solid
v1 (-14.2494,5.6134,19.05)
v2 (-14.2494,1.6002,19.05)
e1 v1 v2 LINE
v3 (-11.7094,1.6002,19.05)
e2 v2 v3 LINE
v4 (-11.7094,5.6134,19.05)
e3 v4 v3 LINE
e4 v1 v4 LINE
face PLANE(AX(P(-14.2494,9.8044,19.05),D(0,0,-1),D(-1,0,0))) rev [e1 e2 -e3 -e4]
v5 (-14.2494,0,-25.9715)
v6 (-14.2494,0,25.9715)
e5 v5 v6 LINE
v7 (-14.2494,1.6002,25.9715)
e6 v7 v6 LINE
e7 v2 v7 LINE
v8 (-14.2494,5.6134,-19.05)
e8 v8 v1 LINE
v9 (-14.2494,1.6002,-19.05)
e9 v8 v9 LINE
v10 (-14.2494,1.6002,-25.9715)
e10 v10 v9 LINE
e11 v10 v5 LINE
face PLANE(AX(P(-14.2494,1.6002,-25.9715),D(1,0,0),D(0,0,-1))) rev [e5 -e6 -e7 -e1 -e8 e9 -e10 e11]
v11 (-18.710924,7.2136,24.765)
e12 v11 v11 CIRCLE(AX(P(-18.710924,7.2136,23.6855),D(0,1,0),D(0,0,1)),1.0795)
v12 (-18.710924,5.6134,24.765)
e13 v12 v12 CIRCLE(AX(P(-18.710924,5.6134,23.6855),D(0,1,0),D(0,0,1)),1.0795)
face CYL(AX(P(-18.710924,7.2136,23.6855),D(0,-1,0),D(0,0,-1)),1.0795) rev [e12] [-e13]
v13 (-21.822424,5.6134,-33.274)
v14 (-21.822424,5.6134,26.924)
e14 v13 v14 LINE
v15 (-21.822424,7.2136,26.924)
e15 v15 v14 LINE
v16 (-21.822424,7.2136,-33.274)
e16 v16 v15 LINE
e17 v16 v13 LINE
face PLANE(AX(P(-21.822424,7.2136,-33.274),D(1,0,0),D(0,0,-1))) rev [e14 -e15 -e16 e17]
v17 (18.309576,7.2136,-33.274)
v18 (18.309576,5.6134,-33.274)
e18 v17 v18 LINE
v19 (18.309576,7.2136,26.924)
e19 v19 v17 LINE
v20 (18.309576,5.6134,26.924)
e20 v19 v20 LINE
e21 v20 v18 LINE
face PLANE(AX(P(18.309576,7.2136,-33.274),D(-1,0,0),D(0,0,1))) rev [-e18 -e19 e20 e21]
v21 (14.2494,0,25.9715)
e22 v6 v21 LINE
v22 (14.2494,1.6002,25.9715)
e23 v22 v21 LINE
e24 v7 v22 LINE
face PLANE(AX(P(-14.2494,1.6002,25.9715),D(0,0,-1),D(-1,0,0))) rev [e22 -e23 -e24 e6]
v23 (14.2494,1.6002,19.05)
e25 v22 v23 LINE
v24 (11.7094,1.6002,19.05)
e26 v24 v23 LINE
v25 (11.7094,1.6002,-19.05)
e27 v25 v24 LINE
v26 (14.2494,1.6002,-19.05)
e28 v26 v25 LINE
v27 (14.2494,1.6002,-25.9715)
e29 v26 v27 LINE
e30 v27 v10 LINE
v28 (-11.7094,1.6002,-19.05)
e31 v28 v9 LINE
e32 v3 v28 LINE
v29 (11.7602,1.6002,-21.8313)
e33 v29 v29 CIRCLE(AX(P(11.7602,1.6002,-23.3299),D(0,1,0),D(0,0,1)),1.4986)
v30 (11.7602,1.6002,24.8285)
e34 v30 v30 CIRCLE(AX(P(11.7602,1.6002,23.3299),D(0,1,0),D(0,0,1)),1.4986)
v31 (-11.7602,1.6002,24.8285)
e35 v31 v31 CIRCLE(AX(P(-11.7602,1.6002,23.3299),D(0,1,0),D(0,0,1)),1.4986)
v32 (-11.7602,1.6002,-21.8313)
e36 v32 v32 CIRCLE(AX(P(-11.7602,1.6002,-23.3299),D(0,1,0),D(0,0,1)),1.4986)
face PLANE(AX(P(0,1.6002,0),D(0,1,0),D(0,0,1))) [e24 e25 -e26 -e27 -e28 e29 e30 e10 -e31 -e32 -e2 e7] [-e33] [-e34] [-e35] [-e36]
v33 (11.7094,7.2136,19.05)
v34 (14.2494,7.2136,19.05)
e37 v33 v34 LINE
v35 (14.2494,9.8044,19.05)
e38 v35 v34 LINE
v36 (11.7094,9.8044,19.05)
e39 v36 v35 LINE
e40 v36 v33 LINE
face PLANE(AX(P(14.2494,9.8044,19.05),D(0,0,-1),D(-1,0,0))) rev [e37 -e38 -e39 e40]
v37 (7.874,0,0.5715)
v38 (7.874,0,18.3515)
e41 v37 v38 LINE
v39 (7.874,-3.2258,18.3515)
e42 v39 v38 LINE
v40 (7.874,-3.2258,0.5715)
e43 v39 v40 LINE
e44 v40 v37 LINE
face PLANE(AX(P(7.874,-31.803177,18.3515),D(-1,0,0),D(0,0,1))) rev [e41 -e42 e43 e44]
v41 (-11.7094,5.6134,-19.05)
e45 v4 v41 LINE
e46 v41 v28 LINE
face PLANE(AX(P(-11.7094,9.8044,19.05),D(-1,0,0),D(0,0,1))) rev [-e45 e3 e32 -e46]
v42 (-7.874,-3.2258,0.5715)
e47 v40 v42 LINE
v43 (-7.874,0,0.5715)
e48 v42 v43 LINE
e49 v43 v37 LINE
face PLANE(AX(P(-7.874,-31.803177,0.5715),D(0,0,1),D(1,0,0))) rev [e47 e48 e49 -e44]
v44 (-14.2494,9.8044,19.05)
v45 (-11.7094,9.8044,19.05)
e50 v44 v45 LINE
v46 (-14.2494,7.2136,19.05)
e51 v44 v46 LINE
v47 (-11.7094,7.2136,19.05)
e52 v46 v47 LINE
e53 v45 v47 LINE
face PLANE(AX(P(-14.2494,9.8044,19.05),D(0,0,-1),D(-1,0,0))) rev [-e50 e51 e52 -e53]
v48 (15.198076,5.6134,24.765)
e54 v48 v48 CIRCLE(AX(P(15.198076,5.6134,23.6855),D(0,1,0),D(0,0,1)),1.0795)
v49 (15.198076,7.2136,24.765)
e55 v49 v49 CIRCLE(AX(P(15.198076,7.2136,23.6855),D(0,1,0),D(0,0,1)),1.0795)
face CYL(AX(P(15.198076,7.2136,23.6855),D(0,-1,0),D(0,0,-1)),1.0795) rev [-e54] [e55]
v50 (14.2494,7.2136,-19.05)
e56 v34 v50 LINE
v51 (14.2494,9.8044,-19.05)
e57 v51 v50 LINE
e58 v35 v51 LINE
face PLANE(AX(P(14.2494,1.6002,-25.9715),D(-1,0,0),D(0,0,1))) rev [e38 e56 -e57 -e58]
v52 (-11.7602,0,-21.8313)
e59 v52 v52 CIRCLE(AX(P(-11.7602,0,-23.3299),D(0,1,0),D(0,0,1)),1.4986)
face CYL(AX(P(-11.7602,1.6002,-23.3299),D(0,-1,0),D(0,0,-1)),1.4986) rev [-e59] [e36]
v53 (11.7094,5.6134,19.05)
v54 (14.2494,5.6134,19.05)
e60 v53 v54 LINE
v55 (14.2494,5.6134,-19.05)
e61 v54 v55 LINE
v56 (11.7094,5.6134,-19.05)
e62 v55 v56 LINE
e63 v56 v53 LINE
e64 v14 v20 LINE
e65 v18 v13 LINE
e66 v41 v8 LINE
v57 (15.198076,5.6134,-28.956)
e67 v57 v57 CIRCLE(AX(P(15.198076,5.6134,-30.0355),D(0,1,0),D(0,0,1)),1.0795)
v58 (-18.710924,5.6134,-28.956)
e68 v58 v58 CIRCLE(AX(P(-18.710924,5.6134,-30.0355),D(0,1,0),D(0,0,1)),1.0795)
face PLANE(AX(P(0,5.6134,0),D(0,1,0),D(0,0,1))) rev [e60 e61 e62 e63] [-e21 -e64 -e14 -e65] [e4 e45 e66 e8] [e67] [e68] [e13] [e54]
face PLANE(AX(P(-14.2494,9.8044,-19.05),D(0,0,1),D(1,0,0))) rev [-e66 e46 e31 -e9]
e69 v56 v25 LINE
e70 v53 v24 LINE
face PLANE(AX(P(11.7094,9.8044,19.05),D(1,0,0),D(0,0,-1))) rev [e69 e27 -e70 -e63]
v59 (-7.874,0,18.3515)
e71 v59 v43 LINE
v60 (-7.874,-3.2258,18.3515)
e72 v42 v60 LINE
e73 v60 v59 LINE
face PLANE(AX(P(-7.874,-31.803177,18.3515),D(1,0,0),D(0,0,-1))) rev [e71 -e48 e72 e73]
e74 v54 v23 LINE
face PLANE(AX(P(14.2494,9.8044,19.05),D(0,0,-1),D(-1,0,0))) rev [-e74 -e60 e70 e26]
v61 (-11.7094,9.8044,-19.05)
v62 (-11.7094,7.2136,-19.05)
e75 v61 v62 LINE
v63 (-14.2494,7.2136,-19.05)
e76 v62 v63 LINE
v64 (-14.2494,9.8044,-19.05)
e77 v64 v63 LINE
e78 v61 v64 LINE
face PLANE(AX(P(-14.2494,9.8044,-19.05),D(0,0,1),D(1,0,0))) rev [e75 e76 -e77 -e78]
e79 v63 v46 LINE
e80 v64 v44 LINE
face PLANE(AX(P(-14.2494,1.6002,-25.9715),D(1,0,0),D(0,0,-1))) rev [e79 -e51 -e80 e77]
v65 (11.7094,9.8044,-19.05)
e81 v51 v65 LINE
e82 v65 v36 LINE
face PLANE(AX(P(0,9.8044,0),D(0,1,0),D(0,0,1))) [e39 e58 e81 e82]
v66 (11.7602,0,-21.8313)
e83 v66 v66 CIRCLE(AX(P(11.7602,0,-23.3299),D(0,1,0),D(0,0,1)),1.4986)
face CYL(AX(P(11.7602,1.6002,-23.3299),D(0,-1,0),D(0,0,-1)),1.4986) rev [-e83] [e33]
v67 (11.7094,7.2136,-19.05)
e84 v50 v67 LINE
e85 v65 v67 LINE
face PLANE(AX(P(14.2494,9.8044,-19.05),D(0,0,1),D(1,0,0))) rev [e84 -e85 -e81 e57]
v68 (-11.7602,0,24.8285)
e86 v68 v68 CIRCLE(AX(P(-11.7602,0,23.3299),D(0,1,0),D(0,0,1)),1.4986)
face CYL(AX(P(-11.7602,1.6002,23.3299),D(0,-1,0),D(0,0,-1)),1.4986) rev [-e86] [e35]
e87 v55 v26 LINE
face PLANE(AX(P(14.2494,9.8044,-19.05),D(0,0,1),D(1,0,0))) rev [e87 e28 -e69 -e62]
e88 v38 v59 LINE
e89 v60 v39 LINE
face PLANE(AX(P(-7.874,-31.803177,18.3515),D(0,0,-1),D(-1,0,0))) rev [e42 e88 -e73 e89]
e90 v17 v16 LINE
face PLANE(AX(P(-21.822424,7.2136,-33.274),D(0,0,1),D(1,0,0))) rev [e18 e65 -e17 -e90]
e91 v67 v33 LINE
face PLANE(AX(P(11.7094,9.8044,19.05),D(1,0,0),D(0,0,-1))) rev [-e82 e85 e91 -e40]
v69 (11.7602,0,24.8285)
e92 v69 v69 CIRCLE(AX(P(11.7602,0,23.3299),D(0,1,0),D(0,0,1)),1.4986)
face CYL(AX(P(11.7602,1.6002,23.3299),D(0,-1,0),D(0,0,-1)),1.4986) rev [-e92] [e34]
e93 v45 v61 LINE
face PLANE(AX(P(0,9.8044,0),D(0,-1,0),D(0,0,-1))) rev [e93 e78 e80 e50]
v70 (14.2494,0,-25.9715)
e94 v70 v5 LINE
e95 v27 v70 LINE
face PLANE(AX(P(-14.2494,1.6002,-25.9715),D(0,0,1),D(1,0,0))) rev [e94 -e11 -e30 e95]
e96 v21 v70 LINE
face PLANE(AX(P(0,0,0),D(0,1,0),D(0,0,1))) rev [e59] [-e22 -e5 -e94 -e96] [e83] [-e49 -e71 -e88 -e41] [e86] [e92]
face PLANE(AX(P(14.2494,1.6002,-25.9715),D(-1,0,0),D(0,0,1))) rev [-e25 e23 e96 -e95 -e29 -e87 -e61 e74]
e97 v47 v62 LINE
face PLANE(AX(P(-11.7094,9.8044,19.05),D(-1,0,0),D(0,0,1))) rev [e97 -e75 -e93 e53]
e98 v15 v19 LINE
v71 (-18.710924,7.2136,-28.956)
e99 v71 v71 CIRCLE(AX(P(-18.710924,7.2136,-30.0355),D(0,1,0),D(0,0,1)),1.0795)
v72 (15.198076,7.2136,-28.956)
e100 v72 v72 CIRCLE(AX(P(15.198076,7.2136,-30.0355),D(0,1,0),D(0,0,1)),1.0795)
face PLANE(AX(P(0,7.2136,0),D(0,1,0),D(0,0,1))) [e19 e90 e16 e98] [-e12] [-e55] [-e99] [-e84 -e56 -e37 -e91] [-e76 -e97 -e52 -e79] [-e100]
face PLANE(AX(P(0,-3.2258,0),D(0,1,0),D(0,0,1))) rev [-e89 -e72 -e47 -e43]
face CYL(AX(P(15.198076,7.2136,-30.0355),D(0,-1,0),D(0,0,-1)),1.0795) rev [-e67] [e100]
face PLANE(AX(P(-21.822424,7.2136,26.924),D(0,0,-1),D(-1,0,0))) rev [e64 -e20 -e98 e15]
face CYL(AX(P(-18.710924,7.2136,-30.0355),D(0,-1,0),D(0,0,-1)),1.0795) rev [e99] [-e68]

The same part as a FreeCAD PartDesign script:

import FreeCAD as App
import Part
import Sketcher
from FreeCAD import Vector
Q = App.Units.Quantity


def add_polygon(sketch, points):
    """Adds a closed chain of lines whose ends are joined by coincident constraints."""
    first, n = sketch.GeometryCount, len(points)
    for a, b in zip(points, points[1:] + points[:1]):
        sketch.addGeometry(Part.LineSegment(App.Vector(*a, 0), App.Vector(*b, 0)), False)
    for i in range(n):
        sketch.addConstraint(Sketcher.Constraint("Coincident", first + i, 2, first + (i + 1) % n, 1))

doc = App.newDocument("Part")
body = doc.addObject("PartDesign::Body", "Body")

sketch1 = body.newObject("Sketcher::SketchObject", "Sketch")
sketch1.AttachmentSupport = (doc.getObject("XZ_Plane"), [""])
sketch1.MapMode = "FlatFace"
add_polygon(sketch1, [(-14.2, -26), (-14.2, 26), (14.2, 26), (14.2, -26)])
sketch1.addGeometry(Part.Circle(Vector(-11.8, 23.3, 0), Vector(0, 0, 1), 1.5), False)
sketch1.addGeometry(Part.Circle(Vector(11.8, 23.3, 0), Vector(0, 0, 1), 1.5), False)
sketch1.addGeometry(Part.Circle(Vector(-11.8, -23.3, 0), Vector(0, 0, 1), 1.5), False)
sketch1.addGeometry(Part.Circle(Vector(11.8, -23.3, 0), Vector(0, 0, 1), 1.5), False)
sketch1.addConstraint([
    Sketcher.Constraint("Vertical", 0),
    Sketcher.Constraint("Horizontal", 1),
    Sketcher.Constraint("Vertical", 2),
    Sketcher.Constraint("Horizontal", 3),
    Sketcher.Constraint("Equal", 4, 5),
    Sketcher.Constraint("Equal", 5, 6),
    Sketcher.Constraint("Equal", 6, 7),
    Sketcher.Constraint("Symmetric", 5, 3, 6, 3, -1, 1),
    Sketcher.Constraint("Symmetric", 4, 3, 7, 3, -1, 1),
    Sketcher.Constraint("Symmetric", 0, 2, 2, 2, -1, 1),
    Sketcher.Constraint("Symmetric", 4, 3, 5, 3, -2),
    Sketcher.Constraint("Diameter", 4, Q("0.118 in")),
    Sketcher.Constraint("DistanceX", 1, 1, 1, 2, Q("1.122 in")),
    Sketcher.Constraint("DistanceY", 0, 1, 0, 2, Q("2.045 in")),
    Sketcher.Constraint("DistanceX", 4, 3, -1, 1, Q("0.463 in")),
    Sketcher.Constraint("DistanceY", 6, 3, 4, 3, Q("1.837 in")),
])
pad1 = body.newObject("PartDesign::Pad", "Pad")
pad1.Profile = sketch1
pad1.Length = Q("0.063 in")
pad1.Reversed = True

sketch2 = body.newObject("Sketcher::SketchObject", "Sketch001")
sketch2.AttachmentSupport = (doc.getObject("XZ_Plane"), [""])
sketch2.MapMode = "FlatFace"
sketch2.AttachmentOffset = App.Placement(Vector(0, 0, -0.063 * 25.4), App.Rotation())
add_polygon(sketch2, [(-14.2, -19.1), (-14.2, 19.1), (-11.7, 19.1), (-11.7, -19.1)])
add_polygon(sketch2, [(11.7, -19.1), (11.7, 19.1), (14.2, 19.1), (14.2, -19.1)])
sketch2.addConstraint([
    Sketcher.Constraint("Vertical", 0),
    Sketcher.Constraint("Horizontal", 1),
    Sketcher.Constraint("Vertical", 2),
    Sketcher.Constraint("Horizontal", 3),
    Sketcher.Constraint("Vertical", 4),
    Sketcher.Constraint("Horizontal", 5),
    Sketcher.Constraint("Vertical", 6),
    Sketcher.Constraint("Horizontal", 7),
    Sketcher.Constraint("Symmetric", 2, 2, 4, 2, -1, 1),
    Sketcher.Constraint("Symmetric", 0, 2, 6, 2, -1, 1),
    Sketcher.Constraint("Horizontal", 1, 2, 4, 2),
    Sketcher.Constraint("DistanceX", 1, 1, 1, 2, Q("0.1 in")),
    Sketcher.Constraint("DistanceY", 0, 1, 0, 2, Q("1.5 in")),
    Sketcher.Constraint("DistanceX", 0, 2, -1, 1, Q("0.561 in")),
])
pad2 = body.newObject("PartDesign::Pad", "Pad001")
pad2.Profile = sketch2
pad2.Length = Q("0.323 in")
pad2.Reversed = True

sketch3 = body.newObject("Sketcher::SketchObject", "Sketch002")
sketch3.AttachmentSupport = (doc.getObject("XZ_Plane"), [""])
sketch3.MapMode = "FlatFace"
add_polygon(sketch3, [(-8, 18), (-8, 1), (8, 1), (8, 18)])
sketch3.addConstraint([
    Sketcher.Constraint("Vertical", 0),
    Sketcher.Constraint("Horizontal", 1),
    Sketcher.Constraint("Vertical", 2),
    Sketcher.Constraint("Horizontal", 3),
    Sketcher.Constraint("DistanceY", 0, 2, 0, 1, Q("0.7 in")),
    Sketcher.Constraint("DistanceX", 1, 1, 1, 2, Q("0.62 in")),
    Sketcher.Constraint("DistanceX", 0, 2, -1, 1, Q("0.31 in")),
    Sketcher.Constraint("DistanceY", -1, 1, 0, 2, Q("0.0225 in")),
])
pad3 = body.newObject("PartDesign::Pad", "Pad002")
pad3.Profile = sketch3
pad3.Length = Q("0.127 in")

sketch4 = body.newObject("Sketcher::SketchObject", "Sketch003")
sketch4.AttachmentSupport = (doc.getObject("XZ_Plane"), [""])
sketch4.MapMode = "FlatFace"
sketch4.AttachmentOffset = App.Placement(Vector(0, 0, -0.221 * 25.4), App.Rotation())
add_polygon(sketch4, [(-21.8, -33.3), (-21.8, 26.9), (18.3, 26.9), (18.3, -33.3)])
sketch4.addGeometry(Part.Circle(Vector(-18.7, 23.7, 0), Vector(0, 0, 1), 1.1), False)
sketch4.addGeometry(Part.Circle(Vector(15.2, 23.7, 0), Vector(0, 0, 1), 1.1), False)
sketch4.addGeometry(Part.Circle(Vector(-18.7, -30, 0), Vector(0, 0, 1), 1.1), False)
sketch4.addGeometry(Part.Circle(Vector(15.2, -30, 0), Vector(0, 0, 1), 1.1), False)
sketch4.addConstraint([
    Sketcher.Constraint("Vertical", 0),
    Sketcher.Constraint("Horizontal", 1),
    Sketcher.Constraint("Vertical", 2),
    Sketcher.Constraint("Horizontal", 3),
    Sketcher.Constraint("Equal", 4, 5),
    Sketcher.Constraint("Equal", 5, 6),
    Sketcher.Constraint("Equal", 6, 7),
    Sketcher.Constraint("Horizontal", 4, 3, 5, 3),
    Sketcher.Constraint("Horizontal", 6, 3, 7, 3),
    Sketcher.Constraint("Vertical", 4, 3, 6, 3),
    Sketcher.Constraint("Vertical", 5, 3, 7, 3),
    Sketcher.Constraint("Diameter", 4, Q("0.085 in")),
    Sketcher.Constraint("DistanceX", 1, 1, 1, 2, Q("1.58 in")),
    Sketcher.Constraint("DistanceY", 0, 1, 0, 2, Q("2.37 in")),
    Sketcher.Constraint("DistanceY", -1, 1, 0, 2, Q("1.06 in")),
    Sketcher.Constraint("DistanceX", 4, 3, 5, 3, Q("1.335 in")),
    Sketcher.Constraint("DistanceY", 6, 3, 4, 3, Q("2.115 in")),
    Sketcher.Constraint("DistanceY", -1, 1, 4, 3, Q("0.9325 in")),
    Sketcher.Constraint("DistanceX", 0, 2, 4, 3, Q("0.1225 in")),
    Sketcher.Constraint("DistanceX", 4, 3, -1, 1, Q("18.710924 mm")),
])
pad4 = body.newObject("PartDesign::Pad", "Pad003")
pad4.Profile = sketch4
pad4.Length = Q("0.063 in")
pad4.Reversed = True

doc.recompute()
